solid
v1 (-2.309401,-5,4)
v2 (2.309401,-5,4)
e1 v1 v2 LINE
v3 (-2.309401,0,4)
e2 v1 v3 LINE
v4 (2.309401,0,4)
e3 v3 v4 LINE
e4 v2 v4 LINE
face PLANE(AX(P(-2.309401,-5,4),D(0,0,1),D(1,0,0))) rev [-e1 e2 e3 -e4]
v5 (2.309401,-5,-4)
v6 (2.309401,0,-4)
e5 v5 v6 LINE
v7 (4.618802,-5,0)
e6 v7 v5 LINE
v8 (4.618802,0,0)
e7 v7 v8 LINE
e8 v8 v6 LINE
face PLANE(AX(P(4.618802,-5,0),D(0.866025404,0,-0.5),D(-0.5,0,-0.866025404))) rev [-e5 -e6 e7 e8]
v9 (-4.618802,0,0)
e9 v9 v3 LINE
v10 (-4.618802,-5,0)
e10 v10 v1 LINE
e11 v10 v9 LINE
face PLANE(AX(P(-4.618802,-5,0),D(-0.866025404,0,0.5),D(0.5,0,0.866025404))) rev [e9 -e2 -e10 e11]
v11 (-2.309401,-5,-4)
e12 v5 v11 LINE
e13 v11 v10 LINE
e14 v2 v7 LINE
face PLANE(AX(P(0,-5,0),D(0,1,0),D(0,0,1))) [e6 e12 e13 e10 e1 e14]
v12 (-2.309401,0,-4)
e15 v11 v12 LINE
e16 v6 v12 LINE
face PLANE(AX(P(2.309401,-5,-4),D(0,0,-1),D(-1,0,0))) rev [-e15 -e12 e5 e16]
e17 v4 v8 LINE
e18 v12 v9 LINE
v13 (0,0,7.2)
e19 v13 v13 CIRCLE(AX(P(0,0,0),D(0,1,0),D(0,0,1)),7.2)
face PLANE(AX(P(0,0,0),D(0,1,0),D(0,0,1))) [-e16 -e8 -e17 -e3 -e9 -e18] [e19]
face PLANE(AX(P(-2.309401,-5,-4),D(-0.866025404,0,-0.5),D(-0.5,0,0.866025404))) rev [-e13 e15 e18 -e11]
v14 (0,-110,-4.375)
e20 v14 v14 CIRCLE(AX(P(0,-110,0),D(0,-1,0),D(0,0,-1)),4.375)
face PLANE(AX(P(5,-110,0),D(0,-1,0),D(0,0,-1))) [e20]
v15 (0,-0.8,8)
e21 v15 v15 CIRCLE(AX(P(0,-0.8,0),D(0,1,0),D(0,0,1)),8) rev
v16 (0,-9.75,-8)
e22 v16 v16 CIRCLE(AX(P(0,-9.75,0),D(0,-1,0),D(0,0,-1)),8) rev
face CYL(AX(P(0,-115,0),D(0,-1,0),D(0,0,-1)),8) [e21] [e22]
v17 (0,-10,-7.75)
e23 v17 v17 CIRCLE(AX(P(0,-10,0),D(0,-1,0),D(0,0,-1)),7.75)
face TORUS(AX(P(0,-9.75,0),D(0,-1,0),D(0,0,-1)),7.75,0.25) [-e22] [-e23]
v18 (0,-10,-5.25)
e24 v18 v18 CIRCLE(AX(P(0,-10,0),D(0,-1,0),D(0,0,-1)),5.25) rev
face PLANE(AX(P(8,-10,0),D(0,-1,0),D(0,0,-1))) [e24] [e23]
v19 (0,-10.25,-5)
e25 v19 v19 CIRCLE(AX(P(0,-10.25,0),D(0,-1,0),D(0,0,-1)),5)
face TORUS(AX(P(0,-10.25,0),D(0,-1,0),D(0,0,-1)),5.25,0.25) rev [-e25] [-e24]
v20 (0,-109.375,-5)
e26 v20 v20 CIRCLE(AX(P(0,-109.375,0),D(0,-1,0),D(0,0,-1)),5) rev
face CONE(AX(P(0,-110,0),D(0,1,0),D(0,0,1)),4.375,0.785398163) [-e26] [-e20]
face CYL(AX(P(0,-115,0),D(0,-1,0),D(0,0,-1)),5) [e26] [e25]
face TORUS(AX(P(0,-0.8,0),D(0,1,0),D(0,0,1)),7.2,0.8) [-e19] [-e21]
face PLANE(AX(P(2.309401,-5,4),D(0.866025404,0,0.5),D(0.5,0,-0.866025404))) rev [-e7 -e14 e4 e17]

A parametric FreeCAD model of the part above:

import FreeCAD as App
import Part
import Sketcher

V = App.Vector
Q = App.Units.Quantity


def edges_at(feature, points):
    """Names of the edges that pass closest to the given points."""
    edges = feature.Shape.Edges
    near = lambda p: min(range(len(edges)), key=lambda i: edges[i].distToShape(Part.Vertex(*p))[0])
    return sorted({f"Edge{near(p) + 1}" for p in points})


def add_polygon(sketch, points):
    """Adds a closed chain of lines whose ends are joined by coincident constraints."""
    first, n = sketch.GeometryCount, len(points)
    for a, b in zip(points, points[1:] + points[:1]):
        sketch.addGeometry(Part.LineSegment(App.Vector(*a, 0), App.Vector(*b, 0)), False)
    for i in range(n):
        sketch.addConstraint(Sketcher.Constraint("Coincident", first + i, 2, first + (i + 1) % n, 1))

doc = App.newDocument("Part")
params = doc.addObject("Spreadsheet::Sheet", "Params")
for row, (alias, value) in enumerate([
    ("sketch1_width", "8 mm"),
    ("sketch1_width2", "5 mm"),
    ("sketch1_height", "110 mm"),
    ("sketch1_height2", "100 mm"),
    ("revolution_angle", "360 deg"),
    ("pocket1_length", "5 mm"),
    ("fillet_radius", "0.8 mm"),
    ("chamfer_size", "0.625 mm"),
    ("fillet2_radius", "0.25 mm"),
], start=1):
    params.set(f"A{row}", alias)
    params.set(f"B{row}", "=" + value)
    params.setAlias(f"B{row}", alias)

body = doc.addObject("PartDesign::Body", "Body")

sketch1 = body.newObject("Sketcher::SketchObject", "Sketch")
sketch1.AttachmentSupport = (doc.getObject("XY_Plane"), [""])
sketch1.MapMode = "FlatFace"
add_polygon(sketch1, [(8, 0), (0, 0), (0, -110), (5, -110), (5, -10), (8, -10)])
sketch1.addConstraint([
    Sketcher.Constraint("Horizontal", 0),
    Sketcher.Constraint("Vertical", 1),
    Sketcher.Constraint("Horizontal", 2),
    Sketcher.Constraint("Vertical", 3),
    Sketcher.Constraint("Horizontal", 4),
    Sketcher.Constraint("Vertical", 5),
    Sketcher.Constraint("Coincident", 0, 2, -1, 1),
    Sketcher.Constraint("DistanceX", 0, 2, 0, 1, 8.0),
    Sketcher.Constraint("DistanceX", 2, 1, 2, 2, 5.0),
    Sketcher.Constraint("DistanceY", 1, 2, 1, 1, 110.0),
    Sketcher.Constraint("DistanceY", 3, 1, 3, 2, 100.0),
])
sketch1.setExpression("Constraints[13]", "Params.sketch1_width")
sketch1.setExpression("Constraints[14]", "Params.sketch1_width2")
sketch1.setExpression("Constraints[15]", "Params.sketch1_height")
sketch1.setExpression("Constraints[16]", "Params.sketch1_height2")
revolution = body.newObject("PartDesign::Revolution", "Revolution")
revolution.Profile = sketch1
revolution.ReferenceAxis = (sketch1, ["V_Axis"])
revolution.setExpression("Angle", "Params.revolution_angle")

sketch2 = body.newObject("Sketcher::SketchObject", "Sketch001")
sketch2.AttachmentSupport = (doc.getObject("XZ_Plane"), [""])
sketch2.MapMode = "FlatFace"
add_polygon(sketch2, [(4.618802, 0), (2.309401, -4), (-2.309401, -4), (-4.618802, 0), (-2.309401, 4), (2.309401, 4)])
sketch2.addConstraint([
    Sketcher.Constraint("Horizontal", 1),
    Sketcher.Constraint("Horizontal", 4),
    Sketcher.Constraint("Symmetric", 0, 2, 3, 2, -1, 1),
    Sketcher.Constraint("Symmetric", 2, 2, 5, 2, -1, 1),
    Sketcher.Constraint("PointOnObject", 2, 2, -1),
    Sketcher.Constraint("Parallel", 2, 5),
    Sketcher.Constraint("Vertical", 1, 2, 3, 2),
    Sketcher.Constraint("Angle", 0, Q("-120 deg")),
    Sketcher.Constraint("DistanceY", 0, 2, -1, 1, 4.0),
    Sketcher.Constraint("DistanceX", -1, 1, 0, 2, 2.309401),
])
pocket1 = body.newObject("PartDesign::Pocket", "Pocket")
pocket1.Profile = sketch2
pocket1.setExpression("Length", "Params.pocket1_length")
pocket1.Reversed = True
doc.recompute()

fillet = body.newObject("PartDesign::Fillet", "Fillet")
fillet.Base = (pocket1, edges_at(pocket1, [(0, 0, 8)]))
fillet.setExpression("Radius", "Params.fillet_radius")
doc.recompute()

chamfer = body.newObject("PartDesign::Chamfer", "Chamfer")
chamfer.Base = (fillet, edges_at(fillet, [(0, -110, 5)]))
chamfer.setExpression("Size", "Params.chamfer_size")
doc.recompute()

fillet2 = body.newObject("PartDesign::Fillet", "Fillet001")
fillet2.Base = (chamfer, edges_at(chamfer, [(0, -10, 5), (0, -10, 8)]))
fillet2.setExpression("Radius", "Params.fillet2_radius")

doc.recompute()
